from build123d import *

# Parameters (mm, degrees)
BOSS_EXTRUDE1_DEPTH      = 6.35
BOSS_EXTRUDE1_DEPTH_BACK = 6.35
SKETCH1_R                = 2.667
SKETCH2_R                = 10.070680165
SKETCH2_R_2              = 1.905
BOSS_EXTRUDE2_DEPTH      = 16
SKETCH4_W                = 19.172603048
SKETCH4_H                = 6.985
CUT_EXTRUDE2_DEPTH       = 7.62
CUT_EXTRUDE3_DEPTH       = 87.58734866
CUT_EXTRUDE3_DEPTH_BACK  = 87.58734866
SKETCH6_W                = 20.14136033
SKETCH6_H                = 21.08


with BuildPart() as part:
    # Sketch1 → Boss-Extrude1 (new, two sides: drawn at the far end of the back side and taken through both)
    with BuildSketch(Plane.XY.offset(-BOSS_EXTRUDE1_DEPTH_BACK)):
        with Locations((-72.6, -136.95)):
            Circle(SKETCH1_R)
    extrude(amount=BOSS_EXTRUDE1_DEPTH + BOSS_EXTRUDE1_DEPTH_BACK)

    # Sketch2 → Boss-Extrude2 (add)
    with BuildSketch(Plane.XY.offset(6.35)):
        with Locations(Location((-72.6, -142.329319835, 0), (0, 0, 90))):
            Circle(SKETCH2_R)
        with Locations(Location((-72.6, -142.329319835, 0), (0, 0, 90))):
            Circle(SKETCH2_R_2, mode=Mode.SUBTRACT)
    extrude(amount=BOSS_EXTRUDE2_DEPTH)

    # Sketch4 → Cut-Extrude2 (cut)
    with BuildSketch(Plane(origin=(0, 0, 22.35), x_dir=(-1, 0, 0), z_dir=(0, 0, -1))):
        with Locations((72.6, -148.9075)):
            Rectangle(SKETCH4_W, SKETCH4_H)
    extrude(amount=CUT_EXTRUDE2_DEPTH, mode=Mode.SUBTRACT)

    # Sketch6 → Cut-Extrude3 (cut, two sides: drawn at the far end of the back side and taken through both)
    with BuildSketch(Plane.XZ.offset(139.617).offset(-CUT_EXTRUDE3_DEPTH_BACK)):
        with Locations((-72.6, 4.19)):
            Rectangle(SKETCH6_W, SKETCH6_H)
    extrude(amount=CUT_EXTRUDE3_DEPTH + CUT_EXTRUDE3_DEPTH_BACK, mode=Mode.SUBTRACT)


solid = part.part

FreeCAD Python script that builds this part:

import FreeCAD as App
import Part
import Sketcher

V = App.Vector
Q = App.Units.Quantity


def add_polygon(sketch, points):
    """Adds a closed chain of lines whose ends are joined by coincident constraints."""
    first, n = sketch.GeometryCount, len(points)
    for a, b in zip(points, points[1:] + points[:1]):
        sketch.addGeometry(Part.LineSegment(App.Vector(*a, 0), App.Vector(*b, 0)), False)
    for i in range(n):
        sketch.addConstraint(Sketcher.Constraint("Coincident", first + i, 2, first + (i + 1) % n, 1))

doc = App.newDocument("Part")
body = doc.addObject("PartDesign::Body", "Body")

# Sketch on XY plane
sketch1 = doc.addObject("Sketcher::SketchObject", "Sketch")
body.addObject(sketch1)
sketch1.AttachmentSupport = (doc.XY_Plane, [""])
sketch1.MapMode = "FlatFace"
sketch1.addGeometry(Part.Circle(V(-72.6, -136.9, 0), V(0, 0, 1), 2.7), False)
sketch1.addConstraint([
    Sketcher.Constraint("Diameter", 0, Q("0.21 in")),
    Sketcher.Constraint("DistanceX", 0, 3, -1, 1, Q("72.6 mm")),
    Sketcher.Constraint("DistanceY", 0, 3, -1, 1, Q("136.95 mm")),
])
pad1 = doc.addObject("PartDesign::Pad", "Pad")
body.addObject(pad1)
pad1.Profile = sketch1
pad1.Type = "TwoLengths"
pad1.Length = Q("0.25 in")
pad1.Length2 = Q("0.25 in")

# Sketch on XY plane
sketch2 = doc.addObject("Sketcher::SketchObject", "Sketch001")
body.addObject(sketch2)
sketch2.AttachmentSupport = (doc.XY_Plane, [""])
sketch2.MapMode = "FlatFace"
sketch2.AttachmentOffset = App.Placement(V(0, 0, 0.25 * 25.4), App.Rotation())
sketch2.addGeometry([
    Part.Circle(V(-72.6, -142.3, 0), V(0, 0, 1), 10.1),
    Part.Circle(V(-72.6, -142.3, 0), V(0, 0, 1), 1.9),
], False)
sketch2.addConstraint([
    Sketcher.Constraint("Coincident", 1, 3, 0, 3),
    Sketcher.Constraint("Diameter", 1, Q("0.15 in")),
    Sketcher.Constraint("Diameter", 0, Q("20.14136 mm")),
    Sketcher.Constraint("DistanceX", 0, 3, -1, 1, Q("72.6 mm")),
    Sketcher.Constraint("DistanceY", 0, 3, -1, 1, Q("142.32932 mm")),
])
pad2 = doc.addObject("PartDesign::Pad", "Pad001")
body.addObject(pad2)
pad2.Profile = sketch2
pad2.Length = 16

# Sketch on XY plane
sketch3 = doc.addObject("Sketcher::SketchObject", "Sketch002")
body.addObject(sketch3)
sketch3.AttachmentSupport = (doc.XY_Plane, [""])
sketch3.MapMode = "FlatFace"
sketch3.AttachmentOffset = App.Placement(V(0, 0, 22.35), App.Rotation())
add_polygon(sketch3, [(-63, -145), (-63, -152), (-82, -152), (-82, -145)])  # lines 0-3
sketch3.addConstraint([
    Sketcher.Constraint("Vertical", 0),
    Sketcher.Constraint("Horizontal", 1),
    Sketcher.Constraint("Vertical", 2),
    Sketcher.Constraint("Horizontal", 3),
    Sketcher.Constraint("DistanceY", 0, 2, -1, 1, Q("6 in")),
    Sketcher.Constraint("DistanceY", 0, 2, 0, 1, Q("0.275 in")),
    Sketcher.Constraint("DistanceX", 0, 2, -1, 1, Q("63.013698 mm")),
    Sketcher.Constraint("DistanceX", 1, 2, -1, 1, Q("82.186302 mm")),
])
pocket1 = doc.addObject("PartDesign::Pocket", "Pocket")
body.addObject(pocket1)
pocket1.Profile = sketch3
pocket1.Length = Q("0.3 in")

# Sketch on XZ plane
sketch4 = doc.addObject("Sketcher::SketchObject", "Sketch003")
body.addObject(sketch4)
sketch4.AttachmentSupport = (doc.XZ_Plane, [""])
sketch4.MapMode = "FlatFace"
sketch4.AttachmentOffset = App.Placement(V(0, 0, 139.617), App.Rotation())
add_polygon(sketch4, [(-83, 15), (-83, -6), (-63, -6), (-63, 15)])  # lines 0-3
sketch4.addConstraint([
    Sketcher.Constraint("Vertical", 0),
    Sketcher.Constraint("Horizontal", 1),
    Sketcher.Constraint("Vertical", 2),
    Sketcher.Constraint("Horizontal", 3),
    Sketcher.Constraint("DistanceY", 0, 2, -1, 1, Q("0.25 in")),
    Sketcher.Constraint("DistanceY", 0, 2, 0, 1, Q("21.08 mm")),
    Sketcher.Constraint("DistanceX", 1, 1, 1, 2, Q("20.14136 mm")),
    Sketcher.Constraint("DistanceX", 0, 2, -1, 1, Q("82.67068 mm")),
])
pocket2 = doc.addObject("PartDesign::Pocket", "Pocket001")
body.addObject(pocket2)
pocket2.Profile = sketch4
pocket2.Type = "ThroughAll"
pocket2.Midplane = True

doc.recompute()
